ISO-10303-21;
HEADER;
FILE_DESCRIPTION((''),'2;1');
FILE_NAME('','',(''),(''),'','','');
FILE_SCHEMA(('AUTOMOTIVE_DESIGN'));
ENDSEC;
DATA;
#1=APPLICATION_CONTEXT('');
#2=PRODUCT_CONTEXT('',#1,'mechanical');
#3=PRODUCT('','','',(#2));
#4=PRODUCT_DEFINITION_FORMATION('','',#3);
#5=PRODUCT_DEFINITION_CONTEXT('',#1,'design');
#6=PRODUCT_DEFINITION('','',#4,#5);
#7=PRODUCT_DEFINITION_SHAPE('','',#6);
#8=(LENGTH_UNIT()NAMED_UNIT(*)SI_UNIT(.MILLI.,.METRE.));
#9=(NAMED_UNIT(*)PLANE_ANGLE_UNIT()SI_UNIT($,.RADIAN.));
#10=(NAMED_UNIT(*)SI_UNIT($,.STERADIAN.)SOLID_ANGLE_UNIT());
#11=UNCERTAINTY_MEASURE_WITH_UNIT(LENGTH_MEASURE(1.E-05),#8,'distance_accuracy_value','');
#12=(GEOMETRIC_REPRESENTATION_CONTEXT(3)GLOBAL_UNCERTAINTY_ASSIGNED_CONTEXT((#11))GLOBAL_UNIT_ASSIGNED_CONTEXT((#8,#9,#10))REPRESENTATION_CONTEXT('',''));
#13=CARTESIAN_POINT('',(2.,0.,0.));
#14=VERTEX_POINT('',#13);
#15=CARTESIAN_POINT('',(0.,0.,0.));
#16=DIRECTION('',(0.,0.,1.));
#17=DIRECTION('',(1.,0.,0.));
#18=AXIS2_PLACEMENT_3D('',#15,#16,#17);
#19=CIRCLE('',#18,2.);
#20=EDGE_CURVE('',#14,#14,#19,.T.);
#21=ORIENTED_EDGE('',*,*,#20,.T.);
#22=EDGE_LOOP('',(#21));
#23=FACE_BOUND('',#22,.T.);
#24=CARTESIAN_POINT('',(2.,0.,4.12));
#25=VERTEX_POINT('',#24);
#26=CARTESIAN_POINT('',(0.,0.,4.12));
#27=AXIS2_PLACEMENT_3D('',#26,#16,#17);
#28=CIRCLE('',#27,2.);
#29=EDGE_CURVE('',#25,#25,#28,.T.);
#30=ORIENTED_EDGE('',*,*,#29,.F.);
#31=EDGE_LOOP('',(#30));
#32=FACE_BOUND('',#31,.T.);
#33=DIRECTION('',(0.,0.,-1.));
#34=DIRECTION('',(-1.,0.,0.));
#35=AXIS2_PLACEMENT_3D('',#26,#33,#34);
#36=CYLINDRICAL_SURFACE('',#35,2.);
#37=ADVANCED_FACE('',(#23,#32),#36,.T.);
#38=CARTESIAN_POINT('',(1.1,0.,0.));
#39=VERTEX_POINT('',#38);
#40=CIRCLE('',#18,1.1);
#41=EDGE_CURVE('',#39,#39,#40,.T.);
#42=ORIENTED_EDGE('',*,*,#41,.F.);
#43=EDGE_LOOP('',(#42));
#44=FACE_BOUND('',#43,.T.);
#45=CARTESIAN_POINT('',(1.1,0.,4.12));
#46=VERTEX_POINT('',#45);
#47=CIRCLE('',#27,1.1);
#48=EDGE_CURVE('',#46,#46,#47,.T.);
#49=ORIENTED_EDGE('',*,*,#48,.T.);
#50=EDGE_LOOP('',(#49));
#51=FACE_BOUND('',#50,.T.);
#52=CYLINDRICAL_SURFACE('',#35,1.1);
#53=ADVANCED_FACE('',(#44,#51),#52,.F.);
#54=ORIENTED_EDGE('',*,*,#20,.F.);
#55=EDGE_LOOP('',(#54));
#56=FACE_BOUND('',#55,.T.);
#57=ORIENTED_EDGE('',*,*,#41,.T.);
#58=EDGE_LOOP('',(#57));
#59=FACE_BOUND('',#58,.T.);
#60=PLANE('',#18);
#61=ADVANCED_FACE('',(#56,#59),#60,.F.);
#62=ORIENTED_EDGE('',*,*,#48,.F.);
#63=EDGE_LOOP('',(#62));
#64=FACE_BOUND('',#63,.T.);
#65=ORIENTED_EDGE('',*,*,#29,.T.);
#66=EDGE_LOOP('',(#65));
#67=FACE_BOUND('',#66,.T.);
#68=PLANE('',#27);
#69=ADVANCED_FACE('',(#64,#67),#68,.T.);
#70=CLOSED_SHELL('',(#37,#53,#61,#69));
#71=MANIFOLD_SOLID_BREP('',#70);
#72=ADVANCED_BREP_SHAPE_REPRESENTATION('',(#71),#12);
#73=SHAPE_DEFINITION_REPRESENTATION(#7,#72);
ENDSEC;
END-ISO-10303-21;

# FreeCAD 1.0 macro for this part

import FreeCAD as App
import Part
import Sketcher
Q = App.Units.Quantity

doc = App.newDocument("Part")
body = doc.addObject("PartDesign::Body", "Body")

sketch1 = doc.addObject("Sketcher::SketchObject", "Sketch")
body.addObject(sketch1)
sketch1.AttachmentSupport = (doc.XY_Plane, [""])
sketch1.MapMode = "FlatFace"
sketch1.addGeometry([
    Part.Circle(App.Vector(0, 0, 0), App.Vector(0, 0, 1), 2),
    Part.Circle(App.Vector(0, 0, 0), App.Vector(0, 0, 1), 1.1),
], False)
sketch1.addConstraint([
    Sketcher.Constraint("Coincident", 0, 3, -1, 1),
    Sketcher.Constraint("Coincident", 1, 3, -1, 1),
    Sketcher.Constraint("Diameter", 0, Q("4 mm")),
    Sketcher.Constraint("Diameter", 1, Q("2.2 mm")),
])
pad1 = doc.addObject("PartDesign::Pad", "Pad")
body.addObject(pad1)
pad1.Profile = sketch1
pad1.Length = 4.12

doc.recompute()
